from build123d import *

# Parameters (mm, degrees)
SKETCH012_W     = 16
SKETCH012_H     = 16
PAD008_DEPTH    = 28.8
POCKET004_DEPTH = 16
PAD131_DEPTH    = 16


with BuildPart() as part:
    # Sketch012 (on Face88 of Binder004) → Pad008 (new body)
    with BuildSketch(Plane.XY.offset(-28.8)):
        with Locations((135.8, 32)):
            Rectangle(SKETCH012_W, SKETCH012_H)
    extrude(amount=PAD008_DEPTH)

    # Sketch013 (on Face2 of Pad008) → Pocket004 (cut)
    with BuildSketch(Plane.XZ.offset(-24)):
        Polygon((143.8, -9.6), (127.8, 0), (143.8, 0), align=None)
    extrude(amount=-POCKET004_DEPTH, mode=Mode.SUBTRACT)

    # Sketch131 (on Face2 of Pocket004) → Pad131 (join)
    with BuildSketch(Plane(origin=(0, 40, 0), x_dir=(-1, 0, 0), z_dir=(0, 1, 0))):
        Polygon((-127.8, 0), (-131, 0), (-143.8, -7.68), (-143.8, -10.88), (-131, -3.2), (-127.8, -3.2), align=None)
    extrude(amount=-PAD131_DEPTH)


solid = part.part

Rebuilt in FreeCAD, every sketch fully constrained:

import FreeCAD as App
import Part
import Sketcher
from FreeCAD import Vector
Q = App.Units.Quantity


def add_polygon(sketch, points):
    """Adds a closed chain of lines whose ends are joined by coincident constraints."""
    first, n = sketch.GeometryCount, len(points)
    for a, b in zip(points, points[1:] + points[:1]):
        sketch.addGeometry(Part.LineSegment(App.Vector(*a, 0), App.Vector(*b, 0)), False)
    for i in range(n):
        sketch.addConstraint(Sketcher.Constraint("Coincident", first + i, 2, first + (i + 1) % n, 1))

doc = App.newDocument("Part")
body = doc.addObject("PartDesign::Body", "Body")

# Sketch on XY plane
sketch1 = doc.addObject("Sketcher::SketchObject", "Sketch")
body.addObject(sketch1)
sketch1.AttachmentSupport = (doc.XY_Plane, [""])
sketch1.MapMode = "FlatFace"
sketch1.AttachmentOffset = App.Placement(Vector(0, 0, -28.8), App.Rotation())
add_polygon(sketch1, [(128, 40), (128, 24), (144, 24), (144, 40)])  # lines 0-3
sketch1.addConstraint([
    Sketcher.Constraint("Vertical", 0),
    Sketcher.Constraint("Horizontal", 1),
    Sketcher.Constraint("Vertical", 2),
    Sketcher.Constraint("Horizontal", 3),
    Sketcher.Constraint("Equal", 3, 0),
    Sketcher.Constraint("DistanceX", 1, 1, 1, 2, Q("16 mm")),
    Sketcher.Constraint("DistanceY", -1, 1, 0, 2, Q("24 mm")),
    Sketcher.Constraint("DistanceX", -1, 1, 0, 2, Q("127.8 mm")),
])
pad1 = doc.addObject("PartDesign::Pad", "Pad")
body.addObject(pad1)
pad1.Profile = sketch1
pad1.Length = 28.8

# Sketch on XZ plane
sketch2 = doc.addObject("Sketcher::SketchObject", "Sketch001")
body.addObject(sketch2)
sketch2.AttachmentSupport = (doc.XZ_Plane, [""])
sketch2.MapMode = "FlatFace"
sketch2.AttachmentOffset = App.Placement(Vector(0, 0, -24), App.Rotation())
add_polygon(sketch2, [(128, 0), (144, -10), (144, 0)])  # lines 0-2
sketch2.addConstraint([
    Sketcher.Constraint("Vertical", 1),
    Sketcher.Constraint("Horizontal", 2),
    Sketcher.Constraint("PointOnObject", 1, 2, -1),
    Sketcher.Constraint("DistanceX", 2, 2, 2, 1, Q("16 mm")),
    Sketcher.Constraint("DistanceY", 1, 1, 1, 2, Q("9.6 mm")),
    Sketcher.Constraint("DistanceX", -1, 1, 0, 2, Q("143.8 mm")),
])
pocket1 = doc.addObject("PartDesign::Pocket", "Pocket")
body.addObject(pocket1)
pocket1.Profile = sketch2
pocket1.Length = 16

# Sketch on XZ plane
sketch3 = doc.addObject("Sketcher::SketchObject", "Sketch002")
body.addObject(sketch3)
sketch3.AttachmentSupport = (doc.XZ_Plane, [""])
sketch3.MapMode = "FlatFace"
sketch3.AttachmentOffset = App.Placement(Vector(0, 0, -40), App.Rotation())
add_polygon(sketch3, [(127.8, 0), (131, 0), (143.8, -7.7), (143.8, -10.9), (131, -3.2), (127.8, -3.2)])  # lines 0-5
sketch3.addConstraint([
    Sketcher.Constraint("Horizontal", 0),
    Sketcher.Constraint("Vertical", 2),
    Sketcher.Constraint("Horizontal", 4),
    Sketcher.Constraint("Vertical", 5),
    Sketcher.Constraint("PointOnObject", 0, 2, -1),
    Sketcher.Constraint("Parallel", 1, 3),
    Sketcher.Constraint("Vertical", 0, 2, 3, 2),
    Sketcher.Constraint("Equal", 4, 2),
    Sketcher.Constraint("DistanceX", 0, 1, 0, 2, Q("3.2 mm")),
    Sketcher.Constraint("DistanceX", -1, 1, 0, 2, Q("131 mm")),
    Sketcher.Constraint("DistanceX", 4, 2, 1, 2, Q("16 mm")),
    Sketcher.Constraint("DistanceY", 1, 2, -1, 1, Q("7.68 mm")),
])
pad2 = doc.addObject("PartDesign::Pad", "Pad001")
body.addObject(pad2)
pad2.Profile = sketch3
pad2.Length = 16

doc.recompute()
